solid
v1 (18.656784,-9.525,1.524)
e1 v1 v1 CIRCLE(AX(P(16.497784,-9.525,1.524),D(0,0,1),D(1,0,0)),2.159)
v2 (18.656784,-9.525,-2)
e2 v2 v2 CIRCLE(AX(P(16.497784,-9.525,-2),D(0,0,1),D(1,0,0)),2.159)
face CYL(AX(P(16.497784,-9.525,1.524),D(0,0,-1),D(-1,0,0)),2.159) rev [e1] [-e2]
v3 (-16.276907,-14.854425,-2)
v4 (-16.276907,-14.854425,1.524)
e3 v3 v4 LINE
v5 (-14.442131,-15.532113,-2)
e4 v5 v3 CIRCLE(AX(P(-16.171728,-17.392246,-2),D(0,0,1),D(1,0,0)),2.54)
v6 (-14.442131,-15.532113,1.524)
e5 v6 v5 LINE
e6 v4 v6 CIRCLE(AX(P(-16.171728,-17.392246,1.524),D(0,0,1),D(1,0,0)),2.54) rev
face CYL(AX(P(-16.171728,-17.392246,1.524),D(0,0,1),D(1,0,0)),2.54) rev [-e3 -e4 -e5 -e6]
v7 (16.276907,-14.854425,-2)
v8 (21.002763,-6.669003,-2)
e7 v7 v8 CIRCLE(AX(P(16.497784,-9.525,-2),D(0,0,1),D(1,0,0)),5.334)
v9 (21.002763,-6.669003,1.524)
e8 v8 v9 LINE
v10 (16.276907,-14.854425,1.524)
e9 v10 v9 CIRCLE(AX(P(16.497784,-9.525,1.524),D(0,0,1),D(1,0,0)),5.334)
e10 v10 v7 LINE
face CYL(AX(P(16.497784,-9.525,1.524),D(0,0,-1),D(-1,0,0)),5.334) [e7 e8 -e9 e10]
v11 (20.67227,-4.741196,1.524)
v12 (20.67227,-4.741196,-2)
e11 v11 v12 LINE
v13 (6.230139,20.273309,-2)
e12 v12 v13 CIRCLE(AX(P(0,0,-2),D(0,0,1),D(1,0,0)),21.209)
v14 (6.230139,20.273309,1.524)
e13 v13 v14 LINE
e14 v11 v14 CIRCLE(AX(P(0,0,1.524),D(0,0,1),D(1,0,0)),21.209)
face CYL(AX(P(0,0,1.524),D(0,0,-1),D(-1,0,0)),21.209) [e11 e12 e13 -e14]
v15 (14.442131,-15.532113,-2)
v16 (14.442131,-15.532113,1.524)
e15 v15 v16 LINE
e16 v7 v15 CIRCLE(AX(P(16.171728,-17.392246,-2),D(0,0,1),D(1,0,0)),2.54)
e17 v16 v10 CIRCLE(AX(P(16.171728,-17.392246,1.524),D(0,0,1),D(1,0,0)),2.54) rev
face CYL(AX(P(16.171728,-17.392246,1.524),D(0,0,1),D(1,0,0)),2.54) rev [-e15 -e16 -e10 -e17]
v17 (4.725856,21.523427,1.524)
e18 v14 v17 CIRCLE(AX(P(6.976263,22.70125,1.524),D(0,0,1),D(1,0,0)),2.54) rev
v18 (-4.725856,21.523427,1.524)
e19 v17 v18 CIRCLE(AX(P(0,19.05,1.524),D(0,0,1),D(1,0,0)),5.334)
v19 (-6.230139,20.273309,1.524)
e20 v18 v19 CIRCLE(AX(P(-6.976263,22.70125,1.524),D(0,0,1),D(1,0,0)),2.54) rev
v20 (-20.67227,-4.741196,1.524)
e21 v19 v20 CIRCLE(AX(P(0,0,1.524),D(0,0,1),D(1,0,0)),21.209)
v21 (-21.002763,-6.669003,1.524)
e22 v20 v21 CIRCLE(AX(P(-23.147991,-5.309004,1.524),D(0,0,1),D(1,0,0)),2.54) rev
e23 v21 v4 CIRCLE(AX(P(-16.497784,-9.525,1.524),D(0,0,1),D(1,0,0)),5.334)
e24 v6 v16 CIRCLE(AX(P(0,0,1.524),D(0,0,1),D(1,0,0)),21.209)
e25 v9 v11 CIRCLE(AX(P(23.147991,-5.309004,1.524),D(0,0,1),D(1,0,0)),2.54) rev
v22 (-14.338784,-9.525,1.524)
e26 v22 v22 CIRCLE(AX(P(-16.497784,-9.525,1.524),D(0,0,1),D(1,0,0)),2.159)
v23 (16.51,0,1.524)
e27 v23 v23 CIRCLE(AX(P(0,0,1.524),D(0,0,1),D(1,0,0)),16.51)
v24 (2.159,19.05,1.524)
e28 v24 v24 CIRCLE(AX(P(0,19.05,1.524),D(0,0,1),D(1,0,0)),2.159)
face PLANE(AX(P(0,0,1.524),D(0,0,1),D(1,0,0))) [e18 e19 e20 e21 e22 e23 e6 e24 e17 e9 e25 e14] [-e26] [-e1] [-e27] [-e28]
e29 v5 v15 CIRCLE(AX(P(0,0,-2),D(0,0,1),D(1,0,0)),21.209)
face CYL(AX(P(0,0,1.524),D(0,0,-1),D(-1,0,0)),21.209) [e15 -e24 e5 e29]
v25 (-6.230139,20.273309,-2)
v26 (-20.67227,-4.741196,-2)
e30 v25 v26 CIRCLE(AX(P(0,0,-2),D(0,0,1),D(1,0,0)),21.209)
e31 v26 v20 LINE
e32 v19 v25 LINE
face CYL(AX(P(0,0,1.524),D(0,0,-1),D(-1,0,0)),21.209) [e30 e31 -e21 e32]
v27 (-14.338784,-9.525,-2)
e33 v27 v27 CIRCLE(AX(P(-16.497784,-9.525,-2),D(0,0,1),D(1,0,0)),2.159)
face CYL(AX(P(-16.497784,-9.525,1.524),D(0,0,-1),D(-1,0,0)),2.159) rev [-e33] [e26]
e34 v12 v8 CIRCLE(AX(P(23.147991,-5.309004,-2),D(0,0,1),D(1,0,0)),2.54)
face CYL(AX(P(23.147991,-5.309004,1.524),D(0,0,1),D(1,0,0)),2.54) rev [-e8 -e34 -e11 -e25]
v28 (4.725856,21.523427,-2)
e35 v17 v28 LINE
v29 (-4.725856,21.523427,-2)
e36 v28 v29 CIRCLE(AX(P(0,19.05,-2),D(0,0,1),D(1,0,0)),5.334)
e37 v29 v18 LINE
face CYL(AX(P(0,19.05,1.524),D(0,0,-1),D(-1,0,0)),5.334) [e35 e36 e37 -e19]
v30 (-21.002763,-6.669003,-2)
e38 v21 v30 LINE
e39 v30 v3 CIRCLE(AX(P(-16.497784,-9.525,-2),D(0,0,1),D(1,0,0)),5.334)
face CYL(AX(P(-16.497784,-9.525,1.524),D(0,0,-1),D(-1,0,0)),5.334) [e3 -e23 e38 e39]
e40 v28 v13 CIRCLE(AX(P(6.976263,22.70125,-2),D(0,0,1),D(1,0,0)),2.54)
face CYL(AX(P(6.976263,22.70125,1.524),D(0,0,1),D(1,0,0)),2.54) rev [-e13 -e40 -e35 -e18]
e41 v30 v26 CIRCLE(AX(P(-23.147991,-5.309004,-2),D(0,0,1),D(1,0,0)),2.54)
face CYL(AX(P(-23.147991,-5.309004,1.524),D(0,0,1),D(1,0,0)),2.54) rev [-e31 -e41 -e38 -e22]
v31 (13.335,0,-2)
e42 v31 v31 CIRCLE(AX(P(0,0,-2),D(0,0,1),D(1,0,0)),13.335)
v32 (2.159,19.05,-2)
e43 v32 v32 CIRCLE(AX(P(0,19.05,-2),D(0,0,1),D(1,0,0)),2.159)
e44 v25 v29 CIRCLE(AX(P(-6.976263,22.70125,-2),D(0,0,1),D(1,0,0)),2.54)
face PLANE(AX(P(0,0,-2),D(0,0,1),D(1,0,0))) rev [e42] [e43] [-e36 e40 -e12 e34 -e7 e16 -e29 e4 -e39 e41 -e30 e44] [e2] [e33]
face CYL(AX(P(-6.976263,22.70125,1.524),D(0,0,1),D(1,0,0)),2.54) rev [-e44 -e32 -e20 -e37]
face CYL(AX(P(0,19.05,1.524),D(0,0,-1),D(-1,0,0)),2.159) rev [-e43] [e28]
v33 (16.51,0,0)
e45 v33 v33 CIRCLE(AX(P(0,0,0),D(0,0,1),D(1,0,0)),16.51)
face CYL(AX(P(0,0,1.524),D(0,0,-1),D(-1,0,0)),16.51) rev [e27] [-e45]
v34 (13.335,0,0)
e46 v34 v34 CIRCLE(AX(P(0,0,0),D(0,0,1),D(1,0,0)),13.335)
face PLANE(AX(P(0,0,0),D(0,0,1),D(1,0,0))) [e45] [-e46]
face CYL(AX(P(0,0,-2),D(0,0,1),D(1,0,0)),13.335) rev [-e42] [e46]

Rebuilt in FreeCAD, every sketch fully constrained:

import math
import FreeCAD as App
import Part
import Sketcher
from FreeCAD import Vector
Q = App.Units.Quantity


def edges_at(feature, points):
    """Names of the edges that pass closest to the given points."""
    edges = feature.Shape.Edges
    near = lambda p: min(range(len(edges)), key=lambda i: edges[i].distToShape(Part.Vertex(*p))[0])
    return sorted({f"Edge{near(p) + 1}" for p in points})

doc = App.newDocument("Part")
params = doc.addObject("Spreadsheet::Sheet", "Params")
for row, (alias, value) in enumerate([
    ("sketch1_diameter", "1.3 in"),
    ("sketch1_diameter2", "0.17 in"),
    ("sketch1_radius", "0.21 in"),
    ("sketch1_radius2", "0.835 in"),
    ("pad1_length", "0.06 in"),
    ("sketch2_diameter", "0.17 in"),
    ("sketch2_diameter2", "1.05 in"),
    ("sketch2_radius", "0.21 in"),
    ("sketch2_radius2", "0.835 in"),
    ("pad2_length", "2 mm"),
    ("fillet_radius", "0.1 in"),
], start=1):
    params.set(f"A{row}", alias)
    params.set(f"B{row}", "=" + value)
    params.setAlias(f"B{row}", alias)

body = doc.addObject("PartDesign::Body", "Body")

# Sketch on XY plane
sketch1 = body.newObject("Sketcher::SketchObject", "Sketch")
sketch1.AttachmentSupport = (doc.getObject("XY_Plane"), [""])
sketch1.MapMode = "FlatFace"
sketch1.addGeometry([
    Part.ArcOfCircle(Part.Circle(Vector(16.5, -9.5, 0), Vector(0, 0, 1), 5.3), math.radians(-103), math.radians(43)),  # 0
    Part.ArcOfCircle(Part.Circle(Vector(0, 0, 0), Vector(0, 0, 1), 21.2), math.radians(-16), math.radians(76)),  # 1
    Part.ArcOfCircle(Part.Circle(Vector(0, 19.1, 0), Vector(0, 0, 1), 5.3), math.radians(17), math.radians(163)),  # 2
    Part.ArcOfCircle(Part.Circle(Vector(0, 0, 0), Vector(0, 0, 1), 21.2), math.radians(104), math.radians(196)),  # 3
    Part.ArcOfCircle(Part.Circle(Vector(-16.5, -9.5, 0), Vector(0, 0, 1), 5.3), math.radians(137), math.radians(283)),  # 4
    Part.ArcOfCircle(Part.Circle(Vector(0, 0, 0), Vector(0, 0, 1), 21.2), math.radians(-136), math.radians(-44)),  # 5
    Part.Circle(Vector(-16.5, -9.5, 0), Vector(0, 0, 1), 2.2),  # 6
    Part.Circle(Vector(16.5, -9.5, 0), Vector(0, 0, 1), 2.2),  # 7
    Part.Circle(Vector(0, 0, 0), Vector(0, 0, 1), 16.5),  # 8
    Part.Circle(Vector(0, 19.1, 0), Vector(0, 0, 1), 2.2),  # 9
], False)
sketch1.addConstraint([
    Sketcher.Constraint("Coincident", 0, 2, 1, 1),
    Sketcher.Constraint("Coincident", 1, 2, 2, 1),
    Sketcher.Constraint("Coincident", 2, 2, 3, 1),
    Sketcher.Constraint("Coincident", 3, 2, 4, 1),
    Sketcher.Constraint("Coincident", 4, 2, 5, 1),
    Sketcher.Constraint("Coincident", 5, 2, 0, 1),
    Sketcher.Constraint("Coincident", 1, 3, -1, 1),
    Sketcher.Constraint("Coincident", 3, 3, -1, 1),
    Sketcher.Constraint("Coincident", 5, 3, -1, 1),
    Sketcher.Constraint("Coincident", 8, 3, -1, 1),
    Sketcher.Constraint("Coincident", 6, 3, 4, 3),
    Sketcher.Constraint("Coincident", 7, 3, 0, 3),
    Sketcher.Constraint("Coincident", 9, 3, 2, 3),
    Sketcher.Constraint("Equal", 0, 2),
    Sketcher.Constraint("Equal", 1, 3),
    Sketcher.Constraint("Equal", 2, 4),
    Sketcher.Constraint("Equal", 3, 5),
    Sketcher.Constraint("Equal", 6, 7),
    Sketcher.Constraint("Equal", 7, 9),
    Sketcher.Constraint("Symmetric", 0, 3, 4, 3, -2),
    Sketcher.Constraint("PointOnObject", 2, 3, -2),
    Sketcher.Constraint("Diameter", 8, Q("1.3 in")),
    Sketcher.Constraint("Diameter", 6, Q("0.17 in")),
    Sketcher.Constraint("Radius", 0, Q("0.21 in")),
    Sketcher.Constraint("Radius", 1, Q("0.835 in")),
    Sketcher.Constraint("DistanceY", -1, 1, 2, 3, Q("0.75 in")),
    Sketcher.Constraint("DistanceY", 0, 3, -1, 1, Q("0.375 in")),
    Sketcher.Constraint("DistanceX", 4, 2, -1, 1, 15.27253),
])
sketch1.setExpression("Constraints[21]", "Params.sketch1_diameter")
sketch1.setExpression("Constraints[22]", "Params.sketch1_diameter2")
sketch1.setExpression("Constraints[23]", "Params.sketch1_radius")
sketch1.setExpression("Constraints[24]", "Params.sketch1_radius2")
pad1 = body.newObject("PartDesign::Pad", "Pad")
pad1.Profile = sketch1
pad1.setExpression("Length", "Params.pad1_length")

# Sketch on XY plane
sketch2 = body.newObject("Sketcher::SketchObject", "Sketch001")
sketch2.AttachmentSupport = (doc.getObject("XY_Plane"), [""])
sketch2.MapMode = "FlatFace"
sketch2.addGeometry([
    Part.ArcOfCircle(Part.Circle(Vector(-16.5, -9.5, 0), Vector(0, 0, 1), 5.3), math.radians(137), math.radians(283)),  # 0
    Part.ArcOfCircle(Part.Circle(Vector(0, 0, 0), Vector(0, 0, 1), 21.2), math.radians(-136), math.radians(-44)),  # 1
    Part.ArcOfCircle(Part.Circle(Vector(16.5, -9.5, 0), Vector(0, 0, 1), 5.3), math.radians(-103), math.radians(43)),  # 2
    Part.ArcOfCircle(Part.Circle(Vector(0, 0, 0), Vector(0, 0, 1), 21.2), math.radians(-16), math.radians(76)),  # 3
    Part.ArcOfCircle(Part.Circle(Vector(0, 19.1, 0), Vector(0, 0, 1), 5.3), math.radians(17), math.radians(163)),  # 4
    Part.ArcOfCircle(Part.Circle(Vector(0, 0, 0), Vector(0, 0, 1), 21.2), math.radians(104), math.radians(196)),  # 5
    Part.Circle(Vector(-16.5, -9.5, 0), Vector(0, 0, 1), 2.2),  # 6
    Part.Circle(Vector(16.5, -9.5, 0), Vector(0, 0, 1), 2.2),  # 7
    Part.Circle(Vector(0, 0, 0), Vector(0, 0, 1), 13.3),  # 8
    Part.Circle(Vector(0, 19.1, 0), Vector(0, 0, 1), 2.2),  # 9
], False)
sketch2.addConstraint([
    Sketcher.Constraint("Coincident", 0, 2, 1, 1),
    Sketcher.Constraint("Coincident", 1, 2, 2, 1),
    Sketcher.Constraint("Coincident", 2, 2, 3, 1),
    Sketcher.Constraint("Coincident", 3, 2, 4, 1),
    Sketcher.Constraint("Coincident", 4, 2, 5, 1),
    Sketcher.Constraint("Coincident", 5, 2, 0, 1),
    Sketcher.Constraint("Coincident", 1, 3, -1, 1),
    Sketcher.Constraint("Coincident", 3, 3, -1, 1),
    Sketcher.Constraint("Coincident", 5, 3, -1, 1),
    Sketcher.Constraint("Coincident", 8, 3, -1, 1),
    Sketcher.Constraint("Coincident", 6, 3, 0, 3),
    Sketcher.Constraint("Coincident", 7, 3, 2, 3),
    Sketcher.Constraint("Coincident", 9, 3, 4, 3),
    Sketcher.Constraint("Equal", 0, 2),
    Sketcher.Constraint("Equal", 1, 3),
    Sketcher.Constraint("Equal", 2, 4),
    Sketcher.Constraint("Equal", 3, 5),
    Sketcher.Constraint("Equal", 6, 7),
    Sketcher.Constraint("Equal", 7, 9),
    Sketcher.Constraint("Symmetric", 0, 3, 2, 3, -2),
    Sketcher.Constraint("PointOnObject", 4, 3, -2),
    Sketcher.Constraint("Diameter", 6, Q("0.17 in")),
    Sketcher.Constraint("Diameter", 8, Q("1.05 in")),
    Sketcher.Constraint("Radius", 0, Q("0.21 in")),
    Sketcher.Constraint("Radius", 1, Q("0.835 in")),
    Sketcher.Constraint("DistanceY", -1, 1, 4, 3, Q("0.75 in")),
    Sketcher.Constraint("DistanceY", 0, 3, -1, 1, Q("0.375 in")),
    Sketcher.Constraint("DistanceX", 0, 2, -1, 1, 15.27253),
])
sketch2.setExpression("Constraints[21]", "Params.sketch2_diameter")
sketch2.setExpression("Constraints[22]", "Params.sketch2_diameter2")
sketch2.setExpression("Constraints[23]", "Params.sketch2_radius")
sketch2.setExpression("Constraints[24]", "Params.sketch2_radius2")
pad2 = body.newObject("PartDesign::Pad", "Pad001")
pad2.Profile = sketch2
pad2.setExpression("Length", "Params.pad2_length")
pad2.Reversed = True
doc.recompute()

fillet = body.newObject("PartDesign::Fillet", "Fillet")
fillet.Base = (pad2, edges_at(pad2, [
    (15.273, -14.716, -0.238),
    (-15.273, -14.716, -0.238),
    (-20.381, -5.868, -0.238),
    (-5.108, 20.585, -0.238),
    (5.108, 20.585, -0.238),
    (20.381, -5.868, -0.238),
]))
fillet.setExpression("Radius", "Params.fillet_radius")

doc.recompute()
